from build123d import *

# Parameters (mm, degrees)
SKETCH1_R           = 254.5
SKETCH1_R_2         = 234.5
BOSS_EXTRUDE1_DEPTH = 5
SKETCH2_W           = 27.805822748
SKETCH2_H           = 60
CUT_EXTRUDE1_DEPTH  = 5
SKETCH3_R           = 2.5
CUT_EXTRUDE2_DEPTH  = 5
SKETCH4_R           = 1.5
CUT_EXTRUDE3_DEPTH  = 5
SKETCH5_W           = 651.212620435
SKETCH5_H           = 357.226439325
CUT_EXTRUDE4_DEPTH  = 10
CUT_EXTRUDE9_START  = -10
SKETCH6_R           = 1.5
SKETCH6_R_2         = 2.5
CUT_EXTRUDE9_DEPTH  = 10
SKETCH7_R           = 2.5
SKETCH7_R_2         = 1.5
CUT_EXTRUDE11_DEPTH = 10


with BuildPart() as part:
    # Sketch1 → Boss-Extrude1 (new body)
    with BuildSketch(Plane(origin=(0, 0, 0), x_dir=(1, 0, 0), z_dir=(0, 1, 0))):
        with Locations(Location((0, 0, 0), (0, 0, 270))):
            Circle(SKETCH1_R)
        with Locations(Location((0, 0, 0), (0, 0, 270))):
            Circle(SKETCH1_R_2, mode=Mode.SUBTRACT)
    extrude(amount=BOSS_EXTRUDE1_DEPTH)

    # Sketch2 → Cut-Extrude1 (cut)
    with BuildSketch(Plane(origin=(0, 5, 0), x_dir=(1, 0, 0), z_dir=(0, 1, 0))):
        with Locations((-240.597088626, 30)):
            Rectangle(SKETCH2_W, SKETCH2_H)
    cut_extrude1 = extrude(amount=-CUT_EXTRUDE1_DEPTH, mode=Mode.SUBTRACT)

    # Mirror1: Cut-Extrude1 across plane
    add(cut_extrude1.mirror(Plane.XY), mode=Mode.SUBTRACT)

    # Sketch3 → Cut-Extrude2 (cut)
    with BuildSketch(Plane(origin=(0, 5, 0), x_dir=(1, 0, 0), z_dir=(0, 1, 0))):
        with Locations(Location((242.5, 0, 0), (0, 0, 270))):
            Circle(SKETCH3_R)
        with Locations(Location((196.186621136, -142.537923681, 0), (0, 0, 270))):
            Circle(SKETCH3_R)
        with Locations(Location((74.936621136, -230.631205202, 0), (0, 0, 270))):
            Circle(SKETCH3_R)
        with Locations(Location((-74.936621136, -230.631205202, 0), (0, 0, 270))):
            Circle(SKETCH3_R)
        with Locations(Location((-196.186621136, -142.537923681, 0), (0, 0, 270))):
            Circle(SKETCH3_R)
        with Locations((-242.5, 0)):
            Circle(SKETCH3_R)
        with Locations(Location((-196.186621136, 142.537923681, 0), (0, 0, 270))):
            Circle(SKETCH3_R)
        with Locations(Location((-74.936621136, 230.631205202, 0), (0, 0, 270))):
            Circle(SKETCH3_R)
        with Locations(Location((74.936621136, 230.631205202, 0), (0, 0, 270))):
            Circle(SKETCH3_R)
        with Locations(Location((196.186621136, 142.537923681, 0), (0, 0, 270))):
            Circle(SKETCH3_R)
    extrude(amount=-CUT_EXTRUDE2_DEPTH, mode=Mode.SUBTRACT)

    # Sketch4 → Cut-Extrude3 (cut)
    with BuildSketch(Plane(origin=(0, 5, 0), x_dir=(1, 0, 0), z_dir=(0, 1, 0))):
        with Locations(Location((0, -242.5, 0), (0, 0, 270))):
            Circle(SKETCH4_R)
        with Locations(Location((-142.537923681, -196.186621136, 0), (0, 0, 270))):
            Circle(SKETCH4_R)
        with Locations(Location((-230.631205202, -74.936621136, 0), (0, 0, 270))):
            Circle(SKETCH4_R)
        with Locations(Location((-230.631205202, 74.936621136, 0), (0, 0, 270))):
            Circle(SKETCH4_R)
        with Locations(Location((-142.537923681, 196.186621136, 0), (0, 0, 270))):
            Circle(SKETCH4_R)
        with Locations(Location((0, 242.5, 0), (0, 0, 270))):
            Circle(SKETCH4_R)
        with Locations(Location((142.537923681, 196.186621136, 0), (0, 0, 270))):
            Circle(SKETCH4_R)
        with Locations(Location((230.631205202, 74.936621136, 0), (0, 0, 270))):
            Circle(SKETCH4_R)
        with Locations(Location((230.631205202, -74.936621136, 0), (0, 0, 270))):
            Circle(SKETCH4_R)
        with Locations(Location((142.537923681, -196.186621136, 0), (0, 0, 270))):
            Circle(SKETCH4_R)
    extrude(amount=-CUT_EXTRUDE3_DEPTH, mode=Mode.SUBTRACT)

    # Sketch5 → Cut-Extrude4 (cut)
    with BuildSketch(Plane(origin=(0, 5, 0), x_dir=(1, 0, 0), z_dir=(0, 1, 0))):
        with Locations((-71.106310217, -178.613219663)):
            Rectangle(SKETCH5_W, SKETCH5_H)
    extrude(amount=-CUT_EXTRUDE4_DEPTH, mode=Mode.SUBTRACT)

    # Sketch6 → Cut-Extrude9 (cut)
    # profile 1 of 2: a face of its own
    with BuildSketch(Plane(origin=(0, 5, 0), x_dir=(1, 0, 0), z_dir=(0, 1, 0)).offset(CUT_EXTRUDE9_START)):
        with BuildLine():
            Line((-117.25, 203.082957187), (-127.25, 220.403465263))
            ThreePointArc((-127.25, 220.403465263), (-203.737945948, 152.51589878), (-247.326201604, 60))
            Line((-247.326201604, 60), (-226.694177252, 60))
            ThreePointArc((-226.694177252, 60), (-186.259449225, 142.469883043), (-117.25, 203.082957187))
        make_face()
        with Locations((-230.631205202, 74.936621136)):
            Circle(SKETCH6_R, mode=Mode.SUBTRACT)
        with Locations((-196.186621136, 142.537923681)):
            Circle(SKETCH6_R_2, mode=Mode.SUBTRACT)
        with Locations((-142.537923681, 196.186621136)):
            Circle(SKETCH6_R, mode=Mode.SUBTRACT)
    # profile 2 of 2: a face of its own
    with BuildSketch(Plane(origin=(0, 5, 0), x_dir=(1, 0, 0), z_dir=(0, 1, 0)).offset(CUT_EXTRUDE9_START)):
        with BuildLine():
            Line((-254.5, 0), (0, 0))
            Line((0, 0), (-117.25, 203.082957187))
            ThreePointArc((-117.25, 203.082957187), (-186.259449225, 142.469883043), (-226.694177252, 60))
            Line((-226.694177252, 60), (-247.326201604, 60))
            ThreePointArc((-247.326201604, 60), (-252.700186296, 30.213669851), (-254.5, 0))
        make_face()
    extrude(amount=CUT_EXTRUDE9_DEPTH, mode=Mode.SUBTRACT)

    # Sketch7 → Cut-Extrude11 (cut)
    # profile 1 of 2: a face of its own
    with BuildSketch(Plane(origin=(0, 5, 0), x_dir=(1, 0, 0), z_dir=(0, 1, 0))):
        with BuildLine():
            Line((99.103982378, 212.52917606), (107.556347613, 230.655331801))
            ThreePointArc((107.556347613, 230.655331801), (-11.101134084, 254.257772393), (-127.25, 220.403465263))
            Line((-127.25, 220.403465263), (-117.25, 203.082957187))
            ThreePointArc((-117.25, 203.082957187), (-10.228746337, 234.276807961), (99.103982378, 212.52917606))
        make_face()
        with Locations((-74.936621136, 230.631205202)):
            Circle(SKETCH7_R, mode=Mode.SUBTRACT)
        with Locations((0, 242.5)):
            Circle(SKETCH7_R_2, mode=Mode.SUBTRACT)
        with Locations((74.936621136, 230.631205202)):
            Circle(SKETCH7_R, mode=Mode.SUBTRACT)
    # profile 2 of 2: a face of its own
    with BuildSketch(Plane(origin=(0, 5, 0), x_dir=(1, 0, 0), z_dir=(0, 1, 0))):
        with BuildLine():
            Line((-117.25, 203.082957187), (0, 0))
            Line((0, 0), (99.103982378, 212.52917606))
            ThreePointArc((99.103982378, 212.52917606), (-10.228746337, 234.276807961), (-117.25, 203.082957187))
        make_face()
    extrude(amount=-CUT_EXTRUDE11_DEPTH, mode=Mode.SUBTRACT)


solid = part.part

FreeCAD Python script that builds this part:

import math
import FreeCAD as App
import Part
import Sketcher

V = App.Vector
Q = App.Units.Quantity


def add_polygon(sketch, points):
    """Adds a closed chain of lines whose ends are joined by coincident constraints."""
    first, n = sketch.GeometryCount, len(points)
    for a, b in zip(points, points[1:] + points[:1]):
        sketch.addGeometry(Part.LineSegment(App.Vector(*a, 0), App.Vector(*b, 0)), False)
    for i in range(n):
        sketch.addConstraint(Sketcher.Constraint("Coincident", first + i, 2, first + (i + 1) % n, 1))

doc = App.newDocument("Part")
body = doc.addObject("PartDesign::Body", "Body")

# Sketch on XZ plane
sketch1 = body.newObject("Sketcher::SketchObject", "Sketch")
sketch1.AttachmentSupport = (doc.getObject("XZ_Plane"), [""])
sketch1.MapMode = "FlatFace"
sketch1.addGeometry([
    Part.Circle(V(0, 0, 0), V(0, 0, 1), 254.5),
    Part.Circle(V(0, 0, 0), V(0, 0, 1), 234.5),
], False)
sketch1.addConstraint([
    Sketcher.Constraint("Coincident", 0, 3, -1, 1),
    Sketcher.Constraint("Coincident", 1, 3, -1, 1),
    Sketcher.Constraint("Diameter", 0, 509.0),
    Sketcher.Constraint("Diameter", 1, 469.0),
])
pad1 = body.newObject("PartDesign::Pad", "Pad")
pad1.Profile = sketch1
pad1.Length = 5
pad1.Reversed = True

# Sketch on XZ plane
sketch2 = body.newObject("Sketcher::SketchObject", "Sketch001")
sketch2.AttachmentSupport = (doc.getObject("XZ_Plane"), [""])
sketch2.MapMode = "FlatFace"
sketch2.AttachmentOffset = App.Placement(V(0, 0, -5), App.Rotation())
add_polygon(sketch2, [(-254.5, -60), (-254.5, 0), (-226.694177, 0), (-226.694177, -60)])  # lines 0-3
sketch2.addConstraint([
    Sketcher.Constraint("Vertical", 0),
    Sketcher.Constraint("Horizontal", 1),
    Sketcher.Constraint("Vertical", 2),
    Sketcher.Constraint("Horizontal", 3),
    Sketcher.Constraint("PointOnObject", 0, 2, -1),
    Sketcher.Constraint("DistanceY", 0, 1, 0, 2, 60.0),
    Sketcher.Constraint("DistanceX", 0, 2, -1, 1, 254.5),
    Sketcher.Constraint("DistanceX", 1, 1, 1, 2, 27.805823),
])
pocket1 = body.newObject("PartDesign::Pocket", "Pocket")
pocket1.Profile = sketch2
pocket1.Length = 5
pocket1.Reversed = True
doc.recompute()

mirrored = body.newObject("PartDesign::Mirrored", "Mirrored")
mirrored.Originals = [pocket1]
mirrored.MirrorPlane = (doc.getObject("XY_Plane"), [""])
body.Tip = mirrored

# Sketch on XZ plane
sketch3 = body.newObject("Sketcher::SketchObject", "Sketch002")
sketch3.AttachmentSupport = (doc.getObject("XZ_Plane"), [""])
sketch3.MapMode = "FlatFace"
sketch3.AttachmentOffset = App.Placement(V(0, 0, -5), App.Rotation())
sketch3.addGeometry([
    Part.Circle(V(242.5, 0, 0), V(0, 0, 1), 2.5),  # 0
    Part.Circle(V(196.186621, 142.537924, 0), V(0, 0, 1), 2.5),  # 1
    Part.Circle(V(74.936621, 230.631205, 0), V(0, 0, 1), 2.5),  # 2
    Part.Circle(V(-74.936621, 230.631205, 0), V(0, 0, 1), 2.5),  # 3
    Part.Circle(V(-196.186621, 142.537924, 0), V(0, 0, 1), 2.5),  # 4
    Part.Circle(V(-242.5, 0, 0), V(0, 0, 1), 2.5),  # 5
    Part.Circle(V(-196.186621, -142.537924, 0), V(0, 0, 1), 2.5),  # 6
    Part.Circle(V(-74.936621, -230.631205, 0), V(0, 0, 1), 2.5),  # 7
    Part.Circle(V(74.936621, -230.631205, 0), V(0, 0, 1), 2.5),  # 8
    Part.Circle(V(196.186621, -142.537924, 0), V(0, 0, 1), 2.5),  # 9
], False)
sketch3.addConstraint([
    Sketcher.Constraint("Equal", 0, 1),
    Sketcher.Constraint("Equal", 1, 2),
    Sketcher.Constraint("Equal", 2, 3),
    Sketcher.Constraint("Equal", 3, 4),
    Sketcher.Constraint("Equal", 4, 5),
    Sketcher.Constraint("Equal", 5, 6),
    Sketcher.Constraint("Equal", 6, 7),
    Sketcher.Constraint("Equal", 7, 8),
    Sketcher.Constraint("Equal", 8, 9),
    Sketcher.Constraint("Symmetric", 0, 3, 5, 3, -1, 1),
    Sketcher.Constraint("Symmetric", 1, 3, 6, 3, -1, 1),
    Sketcher.Constraint("Symmetric", 2, 3, 7, 3, -1, 1),
    Sketcher.Constraint("Symmetric", 3, 3, 8, 3, -1, 1),
    Sketcher.Constraint("Symmetric", 4, 3, 9, 3, -1, 1),
    Sketcher.Constraint("Symmetric", 2, 3, 3, 3, -2),
    Sketcher.Constraint("Symmetric", 1, 3, 4, 3, -2),
    Sketcher.Constraint("PointOnObject", 0, 3, -1),
    Sketcher.Constraint("Diameter", 0, 5.0),
    Sketcher.Constraint("DistanceX", 5, 3, 0, 3, 485.0),
    Sketcher.Constraint("DistanceX", 2, 3, 1, 3, 121.25),
    Sketcher.Constraint("DistanceX", -1, 1, 1, 3, 196.186621),
    Sketcher.Constraint("DistanceY", 1, 3, 2, 3, 88.093282),
    Sketcher.Constraint("DistanceY", 6, 3, 3, 3, 373.169129),
])
pocket2 = body.newObject("PartDesign::Pocket", "Pocket001")
pocket2.Profile = sketch3
pocket2.Length = 5
pocket2.Reversed = True

# Sketch on XZ plane
sketch4 = body.newObject("Sketcher::SketchObject", "Sketch003")
sketch4.AttachmentSupport = (doc.getObject("XZ_Plane"), [""])
sketch4.MapMode = "FlatFace"
sketch4.AttachmentOffset = App.Placement(V(0, 0, -5), App.Rotation())
sketch4.addGeometry([
    Part.Circle(V(0, 242.5, 0), V(0, 0, 1), 1.5),  # 0
    Part.Circle(V(-142.537924, 196.186621, 0), V(0, 0, 1), 1.5),  # 1
    Part.Circle(V(-230.631205, 74.936621, 0), V(0, 0, 1), 1.5),  # 2
    Part.Circle(V(-230.631205, -74.936621, 0), V(0, 0, 1), 1.5),  # 3
    Part.Circle(V(-142.537924, -196.186621, 0), V(0, 0, 1), 1.5),  # 4
    Part.Circle(V(0, -242.5, 0), V(0, 0, 1), 1.5),  # 5
    Part.Circle(V(142.537924, -196.186621, 0), V(0, 0, 1), 1.5),  # 6
    Part.Circle(V(230.631205, -74.936621, 0), V(0, 0, 1), 1.5),  # 7
    Part.Circle(V(230.631205, 74.936621, 0), V(0, 0, 1), 1.5),  # 8
    Part.Circle(V(142.537924, 196.186621, 0), V(0, 0, 1), 1.5),  # 9
], False)
sketch4.addConstraint([
    Sketcher.Constraint("Equal", 0, 1),
    Sketcher.Constraint("Equal", 1, 2),
    Sketcher.Constraint("Equal", 2, 3),
    Sketcher.Constraint("Equal", 3, 4),
    Sketcher.Constraint("Equal", 4, 5),
    Sketcher.Constraint("Equal", 5, 6),
    Sketcher.Constraint("Equal", 6, 7),
    Sketcher.Constraint("Equal", 7, 8),
    Sketcher.Constraint("Equal", 8, 9),
    Sketcher.Constraint("Symmetric", 0, 3, 5, 3, -1, 1),
    Sketcher.Constraint("Symmetric", 1, 3, 6, 3, -1, 1),
    Sketcher.Constraint("Symmetric", 2, 3, 7, 3, -1, 1),
    Sketcher.Constraint("Symmetric", 3, 3, 8, 3, -1, 1),
    Sketcher.Constraint("Symmetric", 4, 3, 9, 3, -1, 1),
    Sketcher.Constraint("Symmetric", 4, 3, 6, 3, -2),
    Sketcher.Constraint("Symmetric", 3, 3, 7, 3, -2),
    Sketcher.Constraint("PointOnObject", 0, 3, -2),
    Sketcher.Constraint("Diameter", 0, 3.0),
    Sketcher.Constraint("DistanceY", 5, 3, 0, 3, 485.0),
    Sketcher.Constraint("DistanceY", 2, 3, 1, 3, 121.25),
    Sketcher.Constraint("DistanceY", -1, 1, 1, 3, 196.186621),
    Sketcher.Constraint("DistanceX", 2, 3, 1, 3, 88.093282),
    Sketcher.Constraint("DistanceX", 3, 3, 6, 3, 373.169129),
])
pocket3 = body.newObject("PartDesign::Pocket", "Pocket002")
pocket3.Profile = sketch4
pocket3.Length = 5
pocket3.Reversed = True

# Sketch on XZ plane
sketch5 = body.newObject("Sketcher::SketchObject", "Sketch004")
sketch5.AttachmentSupport = (doc.getObject("XZ_Plane"), [""])
sketch5.MapMode = "FlatFace"
sketch5.AttachmentOffset = App.Placement(V(0, 0, -5), App.Rotation())
add_polygon(sketch5, [(-396.71262, 0), (-396.71262, 357.226439), (254.5, 357.226439), (254.5, 0)])  # lines 0-3
sketch5.addConstraint([
    Sketcher.Constraint("Vertical", 0),
    Sketcher.Constraint("Horizontal", 1),
    Sketcher.Constraint("Vertical", 2),
    Sketcher.Constraint("Horizontal", 3),
    Sketcher.Constraint("PointOnObject", 2, 2, -1),
    Sketcher.Constraint("DistanceX", -1, 1, 1, 2, 254.5),
    Sketcher.Constraint("DistanceX", 1, 1, 1, 2, 651.21262),
    Sketcher.Constraint("DistanceY", 0, 1, 0, 2, 357.226439),
])
pocket4 = body.newObject("PartDesign::Pocket", "Pocket003")
pocket4.Profile = sketch5
pocket4.Length = 10
pocket4.Reversed = True

# Sketch on XZ plane
sketch6 = body.newObject("Sketcher::SketchObject", "Sketch005")
sketch6.AttachmentSupport = (doc.getObject("XZ_Plane"), [""])
sketch6.MapMode = "FlatFace"
sketch6.AttachmentOffset = App.Placement(V(0, 0, 5), App.Rotation())
sketch6.addGeometry([
    Part.LineSegment(V(-117.25, -203.082957, 0), V(-127.25, -220.403465, 0)),  # 0
    Part.ArcOfCircle(Part.Circle(V(0, 0, 0), V(0, 0, 1), 254.5), math.radians(-166.363787), math.radians(-120)),  # 1
    Part.ArcOfCircle(Part.Circle(V(0, 0, 0), V(0, 0, 1), 254.5), math.radians(-180), math.radians(-166.363787)),  # 2
    Part.LineSegment(V(-254.5, 0, 0), V(0, 0, 0)),  # 3
    Part.LineSegment(V(0, 0, 0), V(-117.25, -203.082957, 0)),  # 4
    Part.Circle(V(-230.631205, -74.936621, 0), V(0, 0, 1), 1.5),  # 5
    Part.Circle(V(-196.186621, -142.537924, 0), V(0, 0, 1), 2.5),  # 6
    Part.Circle(V(-142.537924, -196.186621, 0), V(0, 0, 1), 1.5),  # 7
], False)
sketch6.addConstraint([
    Sketcher.Constraint("Coincident", 0, 2, 1, 2),
    Sketcher.Constraint("Tangent", 1, 1, 2, 2),
    Sketcher.Constraint("Coincident", 2, 1, 3, 1),
    Sketcher.Constraint("Coincident", 3, 2, 4, 1),
    Sketcher.Constraint("Coincident", 4, 2, 0, 1),
    Sketcher.Constraint("Horizontal", 3),
    Sketcher.Constraint("Coincident", 1, 3, -1, 1),
    Sketcher.Constraint("Coincident", 3, 2, -1, 1),
    Sketcher.Constraint("Equal", 1, 2),
    Sketcher.Constraint("Equal", 5, 7),
    Sketcher.Constraint("Parallel", 0, 4),
    Sketcher.Constraint("Diameter", 5, 3.0),
    Sketcher.Constraint("Diameter", 6, 5.0),
    Sketcher.Constraint("Radius", 1, 254.5),
    Sketcher.Constraint("Angle", 0, Q("-120 deg")),
    Sketcher.Constraint("Distance", 0, 20.0),
    Sketcher.Constraint("DistanceY", 1, 1, -1, 1, 60.0),
    Sketcher.Constraint("DistanceY", 7, 3, 5, 3, 121.25),
    Sketcher.Constraint("DistanceY", 5, 3, -1, 1, 74.936621),
    Sketcher.Constraint("DistanceX", 6, 3, -1, 1, 196.186621),
    Sketcher.Constraint("DistanceX", 5, 3, 7, 3, 88.093282),
    Sketcher.Constraint("DistanceY", 0, 2, 6, 3, 77.865542),
    Sketcher.Constraint("DistanceX", 5, 3, -1, 1, 230.631205),
])
pocket5 = body.newObject("PartDesign::Pocket", "Pocket004")
pocket5.Profile = sketch6
pocket5.Length = 10

# Sketch on XZ plane
sketch7 = body.newObject("Sketcher::SketchObject", "Sketch006")
sketch7.AttachmentSupport = (doc.getObject("XZ_Plane"), [""])
sketch7.MapMode = "FlatFace"
sketch7.AttachmentOffset = App.Placement(V(0, 0, -5), App.Rotation())
sketch7.addGeometry([
    Part.LineSegment(V(99.103982, -212.529176, 0), V(107.556348, -230.655332, 0)),  # 0
    Part.ArcOfCircle(Part.Circle(V(0, 0, 0), V(0, 0, 1), 254.5), math.radians(-120), math.radians(-65)),  # 1
    Part.LineSegment(V(-127.25, -220.403465, 0), V(-117.25, -203.082957, 0)),  # 2
    Part.LineSegment(V(-117.25, -203.082957, 0), V(0, 0, 0)),  # 3
    Part.LineSegment(V(0, 0, 0), V(99.103982, -212.529176, 0)),  # 4
    Part.Circle(V(-74.936621, -230.631205, 0), V(0, 0, 1), 2.5),  # 5
    Part.Circle(V(74.936621, -230.631205, 0), V(0, 0, 1), 2.5),  # 6
    Part.Circle(V(0, -242.5, 0), V(0, 0, 1), 1.5),  # 7
], False)
sketch7.addConstraint([
    Sketcher.Constraint("Coincident", 0, 2, 1, 2),
    Sketcher.Constraint("Coincident", 1, 1, 2, 1),
    Sketcher.Constraint("Coincident", 2, 2, 3, 1),
    Sketcher.Constraint("Coincident", 3, 2, 4, 1),
    Sketcher.Constraint("Coincident", 4, 2, 0, 1),
    Sketcher.Constraint("Coincident", 1, 3, -1, 1),
    Sketcher.Constraint("Coincident", 3, 2, -1, 1),
    Sketcher.Constraint("Equal", 5, 6),
    Sketcher.Constraint("Symmetric", 5, 3, 6, 3, -2),
    Sketcher.Constraint("PointOnObject", 7, 3, -2),
    Sketcher.Constraint("Parallel", 2, 3),
    Sketcher.Constraint("Parallel", 0, 4),
    Sketcher.Constraint("Equal", 0, 2),
    Sketcher.Constraint("Diameter", 5, 5.0),
    Sketcher.Constraint("Diameter", 7, 3.0),
    Sketcher.Constraint("Radius", 1, 254.5),
    Sketcher.Constraint("Angle", 0, Q("-65 deg")),
    Sketcher.Constraint("Angle", 2, Q("60 deg")),
    Sketcher.Constraint("Distance", 0, 20.0),
    Sketcher.Constraint("DistanceY", 7, 3, -1, 1, 242.5),
    Sketcher.Constraint("DistanceX", 5, 3, -1, 1, 74.936621),
    Sketcher.Constraint("DistanceY", 5, 3, 1, 1, 10.22774),
])
pocket6 = body.newObject("PartDesign::Pocket", "Pocket005")
pocket6.Profile = sketch7
pocket6.Length = 10
pocket6.Reversed = True

doc.recompute()
